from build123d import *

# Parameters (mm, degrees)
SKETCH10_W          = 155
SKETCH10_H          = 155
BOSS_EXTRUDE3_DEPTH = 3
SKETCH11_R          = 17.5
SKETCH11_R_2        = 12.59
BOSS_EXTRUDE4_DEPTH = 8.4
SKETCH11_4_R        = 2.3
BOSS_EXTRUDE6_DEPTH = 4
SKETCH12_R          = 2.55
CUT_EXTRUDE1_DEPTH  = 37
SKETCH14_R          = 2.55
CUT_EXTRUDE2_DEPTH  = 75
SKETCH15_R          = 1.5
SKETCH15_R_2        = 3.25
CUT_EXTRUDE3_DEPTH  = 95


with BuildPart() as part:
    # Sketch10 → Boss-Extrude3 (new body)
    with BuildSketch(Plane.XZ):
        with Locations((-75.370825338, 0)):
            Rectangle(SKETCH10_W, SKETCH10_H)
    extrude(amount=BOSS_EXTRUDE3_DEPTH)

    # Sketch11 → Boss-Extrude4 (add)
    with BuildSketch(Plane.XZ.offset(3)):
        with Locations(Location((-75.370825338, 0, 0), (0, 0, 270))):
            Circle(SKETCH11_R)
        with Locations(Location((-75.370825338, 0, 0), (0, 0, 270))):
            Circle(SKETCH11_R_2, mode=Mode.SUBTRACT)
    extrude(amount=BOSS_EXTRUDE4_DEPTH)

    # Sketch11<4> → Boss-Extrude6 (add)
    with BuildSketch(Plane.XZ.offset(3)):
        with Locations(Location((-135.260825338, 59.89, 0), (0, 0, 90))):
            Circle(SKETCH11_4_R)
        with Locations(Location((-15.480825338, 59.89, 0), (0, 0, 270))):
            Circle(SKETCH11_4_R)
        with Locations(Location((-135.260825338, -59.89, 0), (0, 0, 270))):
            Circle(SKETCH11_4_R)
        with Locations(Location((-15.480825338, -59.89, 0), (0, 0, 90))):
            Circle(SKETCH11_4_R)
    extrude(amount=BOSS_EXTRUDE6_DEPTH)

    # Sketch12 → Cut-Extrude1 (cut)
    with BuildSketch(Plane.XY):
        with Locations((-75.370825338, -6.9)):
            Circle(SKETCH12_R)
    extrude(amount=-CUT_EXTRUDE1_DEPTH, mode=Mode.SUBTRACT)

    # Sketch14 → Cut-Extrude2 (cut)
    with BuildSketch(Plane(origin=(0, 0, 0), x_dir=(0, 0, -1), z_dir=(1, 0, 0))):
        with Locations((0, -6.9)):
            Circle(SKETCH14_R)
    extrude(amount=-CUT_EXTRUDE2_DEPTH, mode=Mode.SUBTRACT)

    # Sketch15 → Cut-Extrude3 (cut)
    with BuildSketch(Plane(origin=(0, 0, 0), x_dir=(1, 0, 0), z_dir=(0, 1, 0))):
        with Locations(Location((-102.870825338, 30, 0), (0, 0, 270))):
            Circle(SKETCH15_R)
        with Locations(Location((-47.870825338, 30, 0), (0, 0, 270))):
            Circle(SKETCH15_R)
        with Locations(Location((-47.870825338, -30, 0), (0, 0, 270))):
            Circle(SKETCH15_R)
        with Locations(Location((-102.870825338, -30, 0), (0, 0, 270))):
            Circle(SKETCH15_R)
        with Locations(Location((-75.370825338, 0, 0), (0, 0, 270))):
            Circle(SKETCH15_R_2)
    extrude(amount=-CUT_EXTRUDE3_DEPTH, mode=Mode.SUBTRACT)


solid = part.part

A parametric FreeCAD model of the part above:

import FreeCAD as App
import Part
import Sketcher


def add_polygon(sketch, points):
    """Adds a closed chain of lines whose ends are joined by coincident constraints."""
    first, n = sketch.GeometryCount, len(points)
    for a, b in zip(points, points[1:] + points[:1]):
        sketch.addGeometry(Part.LineSegment(App.Vector(*a, 0), App.Vector(*b, 0)), False)
    for i in range(n):
        sketch.addConstraint(Sketcher.Constraint("Coincident", first + i, 2, first + (i + 1) % n, 1))

doc = App.newDocument("Part")
params = doc.addObject("Spreadsheet::Sheet", "Params")
for row, (alias, value) in enumerate([
    ("sketch1_width", "155 mm"),
    ("pad1_length", "3 mm"),
    ("sketch2_diameter", "35 mm"),
    ("sketch2_diameter2", "25.18 mm"),
    ("pad2_length", "8.4 mm"),
    ("sketch3_diameter", "4.6 mm"),
    ("pad3_length", "4 mm"),
    ("sketch4_diameter", "5.1 mm"),
    ("pocket1_length", "37 mm"),
    ("sketch5_diameter", "5.1 mm"),
    ("pocket2_length", "75 mm"),
    ("sketch6_diameter", "3 mm"),
    ("sketch6_diameter2", "6.5 mm"),
    ("pocket3_length", "95 mm"),
], start=1):
    params.set(f"A{row}", alias)
    params.set(f"B{row}", "=" + value)
    params.setAlias(f"B{row}", alias)

body = doc.addObject("PartDesign::Body", "Body")

# Sketch on XZ plane
sketch1 = body.newObject("Sketcher::SketchObject", "Sketch")
sketch1.AttachmentSupport = (doc.getObject("XZ_Plane"), [""])
sketch1.MapMode = "FlatFace"
add_polygon(sketch1, [(-153, 78), (-153, -78), (2, -78), (2, 78)])  # lines 0-3
sketch1.addConstraint([
    Sketcher.Constraint("Vertical", 0),
    Sketcher.Constraint("Horizontal", 1),
    Sketcher.Constraint("Vertical", 2),
    Sketcher.Constraint("Horizontal", 3),
    Sketcher.Constraint("Equal", 3, 0),
    Sketcher.Constraint("DistanceX", 1, 1, 1, 2, 155.0),
    Sketcher.Constraint("DistanceY", 0, 2, -1, 1, 77.5),
    Sketcher.Constraint("DistanceX", 0, 2, -1, 1, 152.870825),
])
sketch1.setExpression("Constraints[9]", "Params.sketch1_width")
pad1 = body.newObject("PartDesign::Pad", "Pad")
pad1.Profile = sketch1
pad1.setExpression("Length", "Params.pad1_length")

# Sketch on XZ plane
sketch2 = body.newObject("Sketcher::SketchObject", "Sketch001")
sketch2.AttachmentSupport = (doc.getObject("XZ_Plane"), [""])
sketch2.MapMode = "FlatFace"
sketch2.AttachmentOffset = App.Placement(App.Vector(0, 0, 3), App.Rotation())
sketch2.addGeometry([
    Part.Circle(App.Vector(-75, 0, 0), App.Vector(0, 0, 1), 18),
    Part.Circle(App.Vector(-75, 0, 0), App.Vector(0, 0, 1), 13),
], False)
sketch2.addConstraint([
    Sketcher.Constraint("Coincident", 1, 3, 0, 3),
    Sketcher.Constraint("PointOnObject", 0, 3, -1),
    Sketcher.Constraint("Diameter", 0, 35.0),
    Sketcher.Constraint("Diameter", 1, 25.18),
    Sketcher.Constraint("DistanceX", 0, 3, -1, 1, 75.370825),
])
sketch2.setExpression("Constraints[2]", "Params.sketch2_diameter")
sketch2.setExpression("Constraints[3]", "Params.sketch2_diameter2")
pad2 = body.newObject("PartDesign::Pad", "Pad001")
pad2.Profile = sketch2
pad2.setExpression("Length", "Params.pad2_length")

# Sketch on XZ plane
sketch3 = body.newObject("Sketcher::SketchObject", "Sketch002")
sketch3.AttachmentSupport = (doc.getObject("XZ_Plane"), [""])
sketch3.MapMode = "FlatFace"
sketch3.AttachmentOffset = App.Placement(App.Vector(0, 0, 3), App.Rotation())
sketch3.addGeometry([
    Part.Circle(App.Vector(-135.3, 59.9, 0), App.Vector(0, 0, 1), 2.3),
    Part.Circle(App.Vector(-15.5, 59.9, 0), App.Vector(0, 0, 1), 2.3),
    Part.Circle(App.Vector(-135.3, -59.9, 0), App.Vector(0, 0, 1), 2.3),
    Part.Circle(App.Vector(-15.5, -59.9, 0), App.Vector(0, 0, 1), 2.3),
], False)
sketch3.addConstraint([
    Sketcher.Constraint("Equal", 0, 1),
    Sketcher.Constraint("Equal", 1, 2),
    Sketcher.Constraint("Equal", 2, 3),
    Sketcher.Constraint("Symmetric", 0, 3, 2, 3, -1),
    Sketcher.Constraint("Symmetric", 1, 3, 3, 3, -1),
    Sketcher.Constraint("Horizontal", 0, 3, 1, 3),
    Sketcher.Constraint("Diameter", 0, 4.6),
    Sketcher.Constraint("DistanceY", -1, 1, 0, 3, 59.89),
    Sketcher.Constraint("DistanceX", 0, 3, 1, 3, 119.78),
    Sketcher.Constraint("DistanceX", 0, 3, -1, 1, 135.260825),
])
sketch3.setExpression("Constraints[6]", "Params.sketch3_diameter")
pad3 = body.newObject("PartDesign::Pad", "Pad002")
pad3.Profile = sketch3
pad3.setExpression("Length", "Params.pad3_length")

# Sketch on XY plane
sketch4 = body.newObject("Sketcher::SketchObject", "Sketch003")
sketch4.AttachmentSupport = (doc.getObject("XY_Plane"), [""])
sketch4.MapMode = "FlatFace"
sketch4.addGeometry(Part.Circle(App.Vector(-75.4, -6.9, 0), App.Vector(0, 0, 1), 2.5), False)
sketch4.addConstraint([
    Sketcher.Constraint("Diameter", 0, 5.1),
    Sketcher.Constraint("DistanceY", 0, 3, -1, 1, 6.9),
    Sketcher.Constraint("DistanceX", 0, 3, -1, 1, 75.370825),
])
sketch4.setExpression("Constraints[0]", "Params.sketch4_diameter")
pocket1 = body.newObject("PartDesign::Pocket", "Pocket")
pocket1.Profile = sketch4
pocket1.setExpression("Length", "Params.pocket1_length")

# Sketch on YZ plane
sketch5 = body.newObject("Sketcher::SketchObject", "Sketch004")
sketch5.AttachmentSupport = (doc.getObject("YZ_Plane"), [""])
sketch5.MapMode = "FlatFace"
sketch5.addGeometry(Part.Circle(App.Vector(-6.9, 0, 0), App.Vector(0, 0, 1), 2.5), False)
sketch5.addConstraint([
    Sketcher.Constraint("PointOnObject", 0, 3, -1),
    Sketcher.Constraint("Diameter", 0, 5.1),
    Sketcher.Constraint("DistanceX", 0, 3, -1, 1, 6.9),
])
sketch5.setExpression("Constraints[1]", "Params.sketch5_diameter")
pocket2 = body.newObject("PartDesign::Pocket", "Pocket001")
pocket2.Profile = sketch5
pocket2.setExpression("Length", "Params.pocket2_length")

# Sketch on XZ plane
sketch6 = body.newObject("Sketcher::SketchObject", "Sketch005")
sketch6.AttachmentSupport = (doc.getObject("XZ_Plane"), [""])
sketch6.MapMode = "FlatFace"
sketch6.addGeometry([
    Part.Circle(App.Vector(-102.9, -30, 0), App.Vector(0, 0, 1), 1.5),  # 0
    Part.Circle(App.Vector(-47.9, -30, 0), App.Vector(0, 0, 1), 1.5),  # 1
    Part.Circle(App.Vector(-47.9, 30, 0), App.Vector(0, 0, 1), 1.5),  # 2
    Part.Circle(App.Vector(-102.9, 30, 0), App.Vector(0, 0, 1), 1.5),  # 3
    Part.Circle(App.Vector(-75.4, 0, 0), App.Vector(0, 0, 1), 3.2),  # 4
], False)
sketch6.addConstraint([
    Sketcher.Constraint("Equal", 0, 1),
    Sketcher.Constraint("Equal", 1, 2),
    Sketcher.Constraint("Equal", 2, 3),
    Sketcher.Constraint("Symmetric", 1, 3, 2, 3, -1),
    Sketcher.Constraint("Symmetric", 0, 3, 3, 3, -1),
    Sketcher.Constraint("PointOnObject", 4, 3, -1),
    Sketcher.Constraint("Horizontal", 0, 3, 1, 3),
    Sketcher.Constraint("Diameter", 0, 3.0),
    Sketcher.Constraint("Diameter", 4, 6.5),
    Sketcher.Constraint("DistanceY", 0, 3, -1, 1, 30.0),
    Sketcher.Constraint("DistanceX", 0, 3, 1, 3, 55.0),
    Sketcher.Constraint("DistanceX", 0, 3, 4, 3, 27.5),
    Sketcher.Constraint("DistanceX", 0, 3, -1, 1, 102.870825),
])
sketch6.setExpression("Constraints[7]", "Params.sketch6_diameter")
sketch6.setExpression("Constraints[8]", "Params.sketch6_diameter2")
pocket3 = body.newObject("PartDesign::Pocket", "Pocket002")
pocket3.Profile = sketch6
pocket3.setExpression("Length", "Params.pocket3_length")
pocket3.Reversed = True

doc.recompute()
